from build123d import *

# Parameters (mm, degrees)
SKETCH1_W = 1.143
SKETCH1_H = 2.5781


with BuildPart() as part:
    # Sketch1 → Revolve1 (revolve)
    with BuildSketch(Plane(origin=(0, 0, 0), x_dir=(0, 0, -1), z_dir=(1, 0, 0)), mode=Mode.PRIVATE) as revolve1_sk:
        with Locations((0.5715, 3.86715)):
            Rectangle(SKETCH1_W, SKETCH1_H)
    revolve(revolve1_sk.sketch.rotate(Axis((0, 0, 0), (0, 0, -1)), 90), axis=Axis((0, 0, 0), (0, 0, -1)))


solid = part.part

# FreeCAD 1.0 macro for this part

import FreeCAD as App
import Part
import Sketcher

V = App.Vector
Q = App.Units.Quantity


def add_polygon(sketch, points):
    """Adds a closed chain of lines whose ends are joined by coincident constraints."""
    first, n = sketch.GeometryCount, len(points)
    for a, b in zip(points, points[1:] + points[:1]):
        sketch.addGeometry(Part.LineSegment(App.Vector(*a, 0), App.Vector(*b, 0)), False)
    for i in range(n):
        sketch.addConstraint(Sketcher.Constraint("Coincident", first + i, 2, first + (i + 1) % n, 1))

doc = App.newDocument("Part")
params = doc.addObject("Spreadsheet::Sheet", "Params")
for row, (alias, value) in enumerate([
    ("sketch1_height", "0.045 in"),
    ("revolution_angle", "360 deg"),
], start=1):
    params.set(f"A{row}", alias)
    params.set(f"B{row}", "=" + value)
    params.setAlias(f"B{row}", alias)

body = doc.addObject("PartDesign::Body", "Body")

# Sketch on YZ plane
sketch1 = doc.addObject("Sketcher::SketchObject", "Sketch")
body.addObject(sketch1)
sketch1.AttachmentSupport = (doc.YZ_Plane, [""])
sketch1.MapMode = "FlatFace"
add_polygon(sketch1, [(5.2, 0), (2.6, 0), (2.6, -1.1), (5.2, -1.1)])  # lines 0-3
sketch1.addConstraint([
    Sketcher.Constraint("Horizontal", 0),
    Sketcher.Constraint("Vertical", 1),
    Sketcher.Constraint("Horizontal", 2),
    Sketcher.Constraint("Vertical", 3),
    Sketcher.Constraint("PointOnObject", 0, 2, -1),
    Sketcher.Constraint("DistanceY", 1, 2, 1, 1, Q("0.045 in")),
    Sketcher.Constraint("DistanceX", 0, 2, 0, 1, Q("0.1015 in")),
    Sketcher.Constraint("DistanceX", -1, 1, 2, 2, Q("0.203 in")),
])
sketch1.setExpression("Constraints[9]", "Params.sketch1_height")
revolution = doc.addObject("PartDesign::Revolution", "Revolution")
body.addObject(revolution)
revolution.Profile = sketch1
revolution.ReferenceAxis = (sketch1, ["V_Axis"])
revolution.setExpression("Angle", "Params.revolution_angle")

doc.recompute()
